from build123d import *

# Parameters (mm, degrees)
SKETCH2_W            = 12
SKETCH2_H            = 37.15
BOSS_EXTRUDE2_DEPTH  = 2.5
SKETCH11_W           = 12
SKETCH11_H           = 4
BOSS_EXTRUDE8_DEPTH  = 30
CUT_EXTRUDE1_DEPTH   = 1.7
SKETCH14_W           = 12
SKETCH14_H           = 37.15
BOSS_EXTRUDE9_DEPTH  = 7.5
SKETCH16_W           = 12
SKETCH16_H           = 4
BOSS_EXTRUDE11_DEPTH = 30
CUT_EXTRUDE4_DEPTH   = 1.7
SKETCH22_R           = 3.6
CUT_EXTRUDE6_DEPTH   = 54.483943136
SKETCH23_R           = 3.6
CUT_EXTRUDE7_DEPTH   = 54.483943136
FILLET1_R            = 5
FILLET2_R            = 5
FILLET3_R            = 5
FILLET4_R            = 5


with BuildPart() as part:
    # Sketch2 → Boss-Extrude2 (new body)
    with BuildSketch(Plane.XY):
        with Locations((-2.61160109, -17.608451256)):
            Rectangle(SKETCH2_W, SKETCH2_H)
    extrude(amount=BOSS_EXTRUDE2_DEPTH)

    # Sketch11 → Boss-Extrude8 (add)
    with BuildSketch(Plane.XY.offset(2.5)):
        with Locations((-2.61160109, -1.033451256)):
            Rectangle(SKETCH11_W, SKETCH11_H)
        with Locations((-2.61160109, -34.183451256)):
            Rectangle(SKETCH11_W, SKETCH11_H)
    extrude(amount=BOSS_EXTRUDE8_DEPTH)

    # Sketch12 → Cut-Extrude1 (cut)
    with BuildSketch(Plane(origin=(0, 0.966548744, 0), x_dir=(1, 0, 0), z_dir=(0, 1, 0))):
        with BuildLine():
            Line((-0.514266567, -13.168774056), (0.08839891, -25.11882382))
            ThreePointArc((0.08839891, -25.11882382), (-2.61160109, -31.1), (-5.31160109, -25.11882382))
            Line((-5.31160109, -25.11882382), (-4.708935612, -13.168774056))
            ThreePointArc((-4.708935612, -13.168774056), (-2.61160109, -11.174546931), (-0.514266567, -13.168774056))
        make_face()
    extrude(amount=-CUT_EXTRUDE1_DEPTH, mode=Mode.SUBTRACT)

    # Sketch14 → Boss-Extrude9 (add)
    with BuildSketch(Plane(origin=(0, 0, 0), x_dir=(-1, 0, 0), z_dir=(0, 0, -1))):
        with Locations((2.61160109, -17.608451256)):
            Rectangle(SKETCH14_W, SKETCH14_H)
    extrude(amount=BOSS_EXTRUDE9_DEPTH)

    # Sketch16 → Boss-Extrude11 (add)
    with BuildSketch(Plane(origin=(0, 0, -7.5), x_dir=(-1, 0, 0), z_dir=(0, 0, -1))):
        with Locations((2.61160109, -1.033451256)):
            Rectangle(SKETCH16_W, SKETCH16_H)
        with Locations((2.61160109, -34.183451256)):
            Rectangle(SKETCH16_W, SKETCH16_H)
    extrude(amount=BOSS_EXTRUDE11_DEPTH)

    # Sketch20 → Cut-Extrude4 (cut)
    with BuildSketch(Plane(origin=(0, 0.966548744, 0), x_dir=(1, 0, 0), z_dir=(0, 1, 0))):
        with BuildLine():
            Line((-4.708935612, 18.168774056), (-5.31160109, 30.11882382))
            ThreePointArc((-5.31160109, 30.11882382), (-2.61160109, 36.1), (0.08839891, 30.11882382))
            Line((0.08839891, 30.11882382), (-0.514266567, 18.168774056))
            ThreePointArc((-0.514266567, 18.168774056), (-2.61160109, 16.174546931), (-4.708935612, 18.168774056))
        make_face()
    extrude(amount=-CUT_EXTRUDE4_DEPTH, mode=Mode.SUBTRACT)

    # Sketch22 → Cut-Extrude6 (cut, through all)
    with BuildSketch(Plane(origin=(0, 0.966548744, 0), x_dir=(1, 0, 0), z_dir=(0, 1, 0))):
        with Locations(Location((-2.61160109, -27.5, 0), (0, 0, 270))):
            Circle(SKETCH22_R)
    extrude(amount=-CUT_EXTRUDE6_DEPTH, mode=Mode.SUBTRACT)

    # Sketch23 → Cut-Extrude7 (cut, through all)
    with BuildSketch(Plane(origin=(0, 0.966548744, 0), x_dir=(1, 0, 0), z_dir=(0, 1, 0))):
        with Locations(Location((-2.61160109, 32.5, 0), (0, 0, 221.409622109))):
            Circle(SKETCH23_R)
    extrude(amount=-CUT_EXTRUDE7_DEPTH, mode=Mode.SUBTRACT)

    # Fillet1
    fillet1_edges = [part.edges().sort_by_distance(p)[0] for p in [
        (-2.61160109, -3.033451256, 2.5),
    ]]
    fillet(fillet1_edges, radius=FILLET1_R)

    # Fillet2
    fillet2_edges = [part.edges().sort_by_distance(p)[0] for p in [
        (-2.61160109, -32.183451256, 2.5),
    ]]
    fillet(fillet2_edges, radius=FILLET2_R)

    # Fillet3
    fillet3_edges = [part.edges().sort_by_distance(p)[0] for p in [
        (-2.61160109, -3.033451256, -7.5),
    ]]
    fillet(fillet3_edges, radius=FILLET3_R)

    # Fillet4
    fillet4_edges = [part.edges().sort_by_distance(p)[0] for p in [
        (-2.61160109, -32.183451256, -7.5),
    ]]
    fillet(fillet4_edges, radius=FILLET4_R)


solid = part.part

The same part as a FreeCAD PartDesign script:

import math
import FreeCAD as App
import Part
import Sketcher
from FreeCAD import Vector


def edges_at(feature, points):
    """Names of the edges that pass closest to the given points."""
    edges = feature.Shape.Edges
    near = lambda p: min(range(len(edges)), key=lambda i: edges[i].distToShape(Part.Vertex(*p))[0])
    return sorted({f"Edge{near(p) + 1}" for p in points})


def add_polygon(sketch, points):
    """Adds a closed chain of lines whose ends are joined by coincident constraints."""
    first, n = sketch.GeometryCount, len(points)
    for a, b in zip(points, points[1:] + points[:1]):
        sketch.addGeometry(Part.LineSegment(App.Vector(*a, 0), App.Vector(*b, 0)), False)
    for i in range(n):
        sketch.addConstraint(Sketcher.Constraint("Coincident", first + i, 2, first + (i + 1) % n, 1))

doc = App.newDocument("Part")
body = doc.addObject("PartDesign::Body", "Body")

# Sketch on XY plane
sketch1 = body.newObject("Sketcher::SketchObject", "Sketch")
sketch1.AttachmentSupport = (doc.getObject("XY_Plane"), [""])
sketch1.MapMode = "FlatFace"
add_polygon(sketch1, [(-9, 1), (-9, -36), (3, -36), (3, 1)])  # lines 0-3
sketch1.addConstraint(Sketcher.Constraint("Vertical", 0))
sketch1.addConstraint(Sketcher.Constraint("Horizontal", 1))
sketch1.addConstraint(Sketcher.Constraint("Vertical", 2))
sketch1.addConstraint(Sketcher.Constraint("Horizontal", 3))
sketch1.addConstraint(Sketcher.Constraint("DistanceX", 1, 1, 1, 2, 12.0))
sketch1.addConstraint(Sketcher.Constraint("DistanceY", 0, 2, 0, 1, 37.15))
sketch1.addConstraint(Sketcher.Constraint("DistanceX", 0, 2, -1, 1, 8.611601))
sketch1.addConstraint(Sketcher.Constraint("DistanceY", 0, 2, -1, 1, 36.183451))
pad1 = body.newObject("PartDesign::Pad", "Pad")
pad1.Profile = sketch1
pad1.Length = 2.5

# Sketch on XY plane
sketch2 = body.newObject("Sketcher::SketchObject", "Sketch001")
sketch2.AttachmentSupport = (doc.getObject("XY_Plane"), [""])
sketch2.MapMode = "FlatFace"
sketch2.AttachmentOffset = App.Placement(Vector(0, 0, 2.5), App.Rotation())
add_polygon(sketch2, [(-8.6, 1), (-8.6, -3), (3.4, -3), (3.4, 1)])  # lines 0-3
add_polygon(sketch2, [(-8.6, -32.2), (-8.6, -36.2), (3.4, -36.2), (3.4, -32.2)])  # lines 4-7
sketch2.addConstraint(Sketcher.Constraint("Vertical", 0))
sketch2.addConstraint(Sketcher.Constraint("Horizontal", 1))
sketch2.addConstraint(Sketcher.Constraint("Vertical", 2))
sketch2.addConstraint(Sketcher.Constraint("Horizontal", 3))
sketch2.addConstraint(Sketcher.Constraint("Vertical", 4))
sketch2.addConstraint(Sketcher.Constraint("Horizontal", 5))
sketch2.addConstraint(Sketcher.Constraint("Vertical", 6))
sketch2.addConstraint(Sketcher.Constraint("Horizontal", 7))
sketch2.addConstraint(Sketcher.Constraint("Vertical", 3, 2, 4, 2))
sketch2.addConstraint(Sketcher.Constraint("Vertical", 2, 2, 5, 2))
sketch2.addConstraint(Sketcher.Constraint("Equal", 2, 4))
sketch2.addConstraint(Sketcher.Constraint("DistanceX", 1, 1, 1, 2, 12.0))
sketch2.addConstraint(Sketcher.Constraint("DistanceY", 0, 2, 0, 1, 4.0))
sketch2.addConstraint(Sketcher.Constraint("DistanceY", 4, 2, 0, 2, 33.15))
sketch2.addConstraint(Sketcher.Constraint("DistanceX", 0, 2, -1, 1, 8.611601))
sketch2.addConstraint(Sketcher.Constraint("DistanceY", 0, 2, -1, 1, 3.033451))
pad2 = body.newObject("PartDesign::Pad", "Pad001")
pad2.Profile = sketch2
pad2.Length = 30

# Sketch on XZ plane
sketch3 = body.newObject("Sketcher::SketchObject", "Sketch002")
sketch3.AttachmentSupport = (doc.getObject("XZ_Plane"), [""])
sketch3.MapMode = "FlatFace"
sketch3.AttachmentOffset = App.Placement(Vector(0, 0, -0.966549), App.Rotation())
sketch3.addGeometry(Part.LineSegment(Vector(0.1, 25.1, 0), Vector(-0.5, 13.2, 0)), False)
sketch3.addGeometry(Part.ArcOfCircle(Part.Circle(Vector(-2.6, 13.3, 0), Vector(0, 0, 1), 2.1), math.radians(-177), math.radians(-3)), False)
sketch3.addGeometry(Part.LineSegment(Vector(-4.7, 13.2, 0), Vector(-5.3, 25.1, 0)), False)
sketch3.addGeometry(Part.ArcOfCircle(Part.Circle(Vector(-2.6, 27.5, 0), Vector(0, 0, 1), 3.6), math.radians(-41), math.radians(221)), False)
sketch3.addConstraint(Sketcher.Constraint("Tangent", 0, 2, 1, 2))
sketch3.addConstraint(Sketcher.Constraint("Tangent", 1, 1, 2, 1))
sketch3.addConstraint(Sketcher.Constraint("Coincident", 2, 2, 3, 2))
sketch3.addConstraint(Sketcher.Constraint("Coincident", 3, 1, 0, 1))
sketch3.addConstraint(Sketcher.Constraint("Horizontal", 0, 2, 1, 1))
sketch3.addConstraint(Sketcher.Constraint("Horizontal", 2, 2, 3, 1))
sketch3.addConstraint(Sketcher.Constraint("Radius", 1, 2.1))
sketch3.addConstraint(Sketcher.Constraint("Radius", 3, 3.6))
sketch3.addConstraint(Sketcher.Constraint("DistanceY", -1, 1, 3, 3, 27.5))
sketch3.addConstraint(Sketcher.Constraint("DistanceX", 2, 2, 3, 3, 2.7))
sketch3.addConstraint(Sketcher.Constraint("DistanceX", 1, 3, -1, 1, 2.611601))
sketch3.addConstraint(Sketcher.Constraint("DistanceY", 1, 1, 2, 2, 11.95005))
pocket1 = body.newObject("PartDesign::Pocket", "Pocket")
pocket1.Profile = sketch3
pocket1.Length = 1.7
pocket1.Reversed = True

# Sketch on XY plane
sketch4 = body.newObject("Sketcher::SketchObject", "Sketch003")
sketch4.AttachmentSupport = (doc.getObject("XY_Plane"), [""])
sketch4.MapMode = "FlatFace"
add_polygon(sketch4, [(3, 1), (3, -36), (-9, -36), (-9, 1)])  # lines 0-3
sketch4.addConstraint(Sketcher.Constraint("Vertical", 0))
sketch4.addConstraint(Sketcher.Constraint("Horizontal", 1))
sketch4.addConstraint(Sketcher.Constraint("Vertical", 2))
sketch4.addConstraint(Sketcher.Constraint("Horizontal", 3))
sketch4.addConstraint(Sketcher.Constraint("DistanceX", 1, 2, 1, 1, 12.0))
sketch4.addConstraint(Sketcher.Constraint("DistanceY", 0, 2, 0, 1, 37.15))
sketch4.addConstraint(Sketcher.Constraint("DistanceX", -1, 1, 0, 2, 3.388399))
sketch4.addConstraint(Sketcher.Constraint("DistanceY", 0, 2, -1, 1, 36.183451))
pad3 = body.newObject("PartDesign::Pad", "Pad002")
pad3.Profile = sketch4
pad3.Length = 7.5
pad3.Reversed = True

# Sketch on XY plane
sketch5 = body.newObject("Sketcher::SketchObject", "Sketch004")
sketch5.AttachmentSupport = (doc.getObject("XY_Plane"), [""])
sketch5.MapMode = "FlatFace"
sketch5.AttachmentOffset = App.Placement(Vector(0, 0, -7.5), App.Rotation())
add_polygon(sketch5, [(3.4, 1), (3.4, -3), (-8.6, -3), (-8.6, 1)])  # lines 0-3
add_polygon(sketch5, [(3.4, -32.2), (3.4, -36.2), (-8.6, -36.2), (-8.6, -32.2)])  # lines 4-7
sketch5.addConstraint(Sketcher.Constraint("Vertical", 0))
sketch5.addConstraint(Sketcher.Constraint("Horizontal", 1))
sketch5.addConstraint(Sketcher.Constraint("Vertical", 2))
sketch5.addConstraint(Sketcher.Constraint("Horizontal", 3))
sketch5.addConstraint(Sketcher.Constraint("Vertical", 4))
sketch5.addConstraint(Sketcher.Constraint("Horizontal", 5))
sketch5.addConstraint(Sketcher.Constraint("Vertical", 6))
sketch5.addConstraint(Sketcher.Constraint("Horizontal", 7))
sketch5.addConstraint(Sketcher.Constraint("Vertical", 3, 2, 4, 2))
sketch5.addConstraint(Sketcher.Constraint("Vertical", 2, 2, 5, 2))
sketch5.addConstraint(Sketcher.Constraint("Equal", 2, 4))
sketch5.addConstraint(Sketcher.Constraint("DistanceX", 1, 2, 1, 1, 12.0))
sketch5.addConstraint(Sketcher.Constraint("DistanceY", 0, 2, 0, 1, 4.0))
sketch5.addConstraint(Sketcher.Constraint("DistanceY", 4, 2, 0, 2, 33.15))
sketch5.addConstraint(Sketcher.Constraint("DistanceX", -1, 1, 0, 2, 3.388399))
sketch5.addConstraint(Sketcher.Constraint("DistanceY", 0, 2, -1, 1, 3.033451))
pad4 = body.newObject("PartDesign::Pad", "Pad003")
pad4.Profile = sketch5
pad4.Length = 30
pad4.Reversed = True

# Sketch on XZ plane
sketch6 = body.newObject("Sketcher::SketchObject", "Sketch005")
sketch6.AttachmentSupport = (doc.getObject("XZ_Plane"), [""])
sketch6.MapMode = "FlatFace"
sketch6.AttachmentOffset = App.Placement(Vector(0, 0, -0.966549), App.Rotation())
sketch6.addGeometry(Part.LineSegment(Vector(-5.3, -30.1, 0), Vector(-4.7, -18.2, 0)), False)
sketch6.addGeometry(Part.ArcOfCircle(Part.Circle(Vector(-2.6, -18.3, 0), Vector(0, 0, 1), 2.1), math.radians(3), math.radians(177)), False)
sketch6.addGeometry(Part.LineSegment(Vector(-0.5, -18.2, 0), Vector(0.1, -30.1, 0)), False)
sketch6.addGeometry(Part.ArcOfCircle(Part.Circle(Vector(-2.6, -32.5, 0), Vector(0, 0, 1), 3.6), math.radians(139), math.radians(401)), False)
sketch6.addConstraint(Sketcher.Constraint("Tangent", 0, 2, 1, 2))
sketch6.addConstraint(Sketcher.Constraint("Tangent", 1, 1, 2, 1))
sketch6.addConstraint(Sketcher.Constraint("Coincident", 2, 2, 3, 2))
sketch6.addConstraint(Sketcher.Constraint("Coincident", 3, 1, 0, 1))
sketch6.addConstraint(Sketcher.Constraint("Horizontal", 0, 2, 1, 1))
sketch6.addConstraint(Sketcher.Constraint("Horizontal", 2, 2, 3, 1))
sketch6.addConstraint(Sketcher.Constraint("Radius", 1, 2.1))
sketch6.addConstraint(Sketcher.Constraint("Radius", 3, 3.6))
sketch6.addConstraint(Sketcher.Constraint("DistanceY", 3, 3, -1, 1, 32.5))
sketch6.addConstraint(Sketcher.Constraint("DistanceX", 3, 3, 2, 2, 2.7))
sketch6.addConstraint(Sketcher.Constraint("DistanceX", 1, 3, -1, 1, 2.611601))
sketch6.addConstraint(Sketcher.Constraint("DistanceY", 2, 2, 1, 1, 11.95005))
pocket2 = body.newObject("PartDesign::Pocket", "Pocket001")
pocket2.Profile = sketch6
pocket2.Length = 1.7
pocket2.Reversed = True

# Sketch on XZ plane
sketch7 = body.newObject("Sketcher::SketchObject", "Sketch006")
sketch7.AttachmentSupport = (doc.getObject("XZ_Plane"), [""])
sketch7.MapMode = "FlatFace"
sketch7.AttachmentOffset = App.Placement(Vector(0, 0, -0.966549), App.Rotation())
sketch7.addGeometry(Part.Circle(Vector(-2.6, 27.5, 0), Vector(0, 0, 1), 3.6), False)
sketch7.addConstraint(Sketcher.Constraint("Diameter", 0, 7.2))
sketch7.addConstraint(Sketcher.Constraint("DistanceY", -1, 1, 0, 3, 27.5))
sketch7.addConstraint(Sketcher.Constraint("DistanceX", 0, 3, -1, 1, 2.611601))
pocket3 = body.newObject("PartDesign::Pocket", "Pocket002")
pocket3.Profile = sketch7
pocket3.Type = "ThroughAll"
pocket3.Reversed = True

# Sketch on XZ plane
sketch8 = body.newObject("Sketcher::SketchObject", "Sketch007")
sketch8.AttachmentSupport = (doc.getObject("XZ_Plane"), [""])
sketch8.MapMode = "FlatFace"
sketch8.AttachmentOffset = App.Placement(Vector(0, 0, -0.966549), App.Rotation())
sketch8.addGeometry(Part.Circle(Vector(-2.6, -32.5, 0), Vector(0, 0, 1), 3.6), False)
sketch8.addConstraint(Sketcher.Constraint("Diameter", 0, 7.2))
sketch8.addConstraint(Sketcher.Constraint("DistanceY", 0, 3, -1, 1, 32.5))
sketch8.addConstraint(Sketcher.Constraint("DistanceX", 0, 3, -1, 1, 2.611601))
pocket4 = body.newObject("PartDesign::Pocket", "Pocket003")
pocket4.Profile = sketch8
pocket4.Type = "ThroughAll"
pocket4.Reversed = True
doc.recompute()

fillet = body.newObject("PartDesign::Fillet", "Fillet")
fillet.Base = (pocket4, edges_at(pocket4, [(-2.612, -3.033, 2.5)]))
fillet.Radius = 5
doc.recompute()

fillet2 = body.newObject("PartDesign::Fillet", "Fillet001")
fillet2.Base = (fillet, edges_at(fillet, [(-2.612, -32.183, 2.5)]))
fillet2.Radius = 5
doc.recompute()

fillet3 = body.newObject("PartDesign::Fillet", "Fillet002")
fillet3.Base = (fillet2, edges_at(fillet2, [(-2.612, -3.033, -7.5)]))
fillet3.Radius = 5
doc.recompute()

fillet4 = body.newObject("PartDesign::Fillet", "Fillet003")
fillet4.Base = (fillet3, edges_at(fillet3, [(-2.612, -32.183, -7.5)]))
fillet4.Radius = 5

doc.recompute()
